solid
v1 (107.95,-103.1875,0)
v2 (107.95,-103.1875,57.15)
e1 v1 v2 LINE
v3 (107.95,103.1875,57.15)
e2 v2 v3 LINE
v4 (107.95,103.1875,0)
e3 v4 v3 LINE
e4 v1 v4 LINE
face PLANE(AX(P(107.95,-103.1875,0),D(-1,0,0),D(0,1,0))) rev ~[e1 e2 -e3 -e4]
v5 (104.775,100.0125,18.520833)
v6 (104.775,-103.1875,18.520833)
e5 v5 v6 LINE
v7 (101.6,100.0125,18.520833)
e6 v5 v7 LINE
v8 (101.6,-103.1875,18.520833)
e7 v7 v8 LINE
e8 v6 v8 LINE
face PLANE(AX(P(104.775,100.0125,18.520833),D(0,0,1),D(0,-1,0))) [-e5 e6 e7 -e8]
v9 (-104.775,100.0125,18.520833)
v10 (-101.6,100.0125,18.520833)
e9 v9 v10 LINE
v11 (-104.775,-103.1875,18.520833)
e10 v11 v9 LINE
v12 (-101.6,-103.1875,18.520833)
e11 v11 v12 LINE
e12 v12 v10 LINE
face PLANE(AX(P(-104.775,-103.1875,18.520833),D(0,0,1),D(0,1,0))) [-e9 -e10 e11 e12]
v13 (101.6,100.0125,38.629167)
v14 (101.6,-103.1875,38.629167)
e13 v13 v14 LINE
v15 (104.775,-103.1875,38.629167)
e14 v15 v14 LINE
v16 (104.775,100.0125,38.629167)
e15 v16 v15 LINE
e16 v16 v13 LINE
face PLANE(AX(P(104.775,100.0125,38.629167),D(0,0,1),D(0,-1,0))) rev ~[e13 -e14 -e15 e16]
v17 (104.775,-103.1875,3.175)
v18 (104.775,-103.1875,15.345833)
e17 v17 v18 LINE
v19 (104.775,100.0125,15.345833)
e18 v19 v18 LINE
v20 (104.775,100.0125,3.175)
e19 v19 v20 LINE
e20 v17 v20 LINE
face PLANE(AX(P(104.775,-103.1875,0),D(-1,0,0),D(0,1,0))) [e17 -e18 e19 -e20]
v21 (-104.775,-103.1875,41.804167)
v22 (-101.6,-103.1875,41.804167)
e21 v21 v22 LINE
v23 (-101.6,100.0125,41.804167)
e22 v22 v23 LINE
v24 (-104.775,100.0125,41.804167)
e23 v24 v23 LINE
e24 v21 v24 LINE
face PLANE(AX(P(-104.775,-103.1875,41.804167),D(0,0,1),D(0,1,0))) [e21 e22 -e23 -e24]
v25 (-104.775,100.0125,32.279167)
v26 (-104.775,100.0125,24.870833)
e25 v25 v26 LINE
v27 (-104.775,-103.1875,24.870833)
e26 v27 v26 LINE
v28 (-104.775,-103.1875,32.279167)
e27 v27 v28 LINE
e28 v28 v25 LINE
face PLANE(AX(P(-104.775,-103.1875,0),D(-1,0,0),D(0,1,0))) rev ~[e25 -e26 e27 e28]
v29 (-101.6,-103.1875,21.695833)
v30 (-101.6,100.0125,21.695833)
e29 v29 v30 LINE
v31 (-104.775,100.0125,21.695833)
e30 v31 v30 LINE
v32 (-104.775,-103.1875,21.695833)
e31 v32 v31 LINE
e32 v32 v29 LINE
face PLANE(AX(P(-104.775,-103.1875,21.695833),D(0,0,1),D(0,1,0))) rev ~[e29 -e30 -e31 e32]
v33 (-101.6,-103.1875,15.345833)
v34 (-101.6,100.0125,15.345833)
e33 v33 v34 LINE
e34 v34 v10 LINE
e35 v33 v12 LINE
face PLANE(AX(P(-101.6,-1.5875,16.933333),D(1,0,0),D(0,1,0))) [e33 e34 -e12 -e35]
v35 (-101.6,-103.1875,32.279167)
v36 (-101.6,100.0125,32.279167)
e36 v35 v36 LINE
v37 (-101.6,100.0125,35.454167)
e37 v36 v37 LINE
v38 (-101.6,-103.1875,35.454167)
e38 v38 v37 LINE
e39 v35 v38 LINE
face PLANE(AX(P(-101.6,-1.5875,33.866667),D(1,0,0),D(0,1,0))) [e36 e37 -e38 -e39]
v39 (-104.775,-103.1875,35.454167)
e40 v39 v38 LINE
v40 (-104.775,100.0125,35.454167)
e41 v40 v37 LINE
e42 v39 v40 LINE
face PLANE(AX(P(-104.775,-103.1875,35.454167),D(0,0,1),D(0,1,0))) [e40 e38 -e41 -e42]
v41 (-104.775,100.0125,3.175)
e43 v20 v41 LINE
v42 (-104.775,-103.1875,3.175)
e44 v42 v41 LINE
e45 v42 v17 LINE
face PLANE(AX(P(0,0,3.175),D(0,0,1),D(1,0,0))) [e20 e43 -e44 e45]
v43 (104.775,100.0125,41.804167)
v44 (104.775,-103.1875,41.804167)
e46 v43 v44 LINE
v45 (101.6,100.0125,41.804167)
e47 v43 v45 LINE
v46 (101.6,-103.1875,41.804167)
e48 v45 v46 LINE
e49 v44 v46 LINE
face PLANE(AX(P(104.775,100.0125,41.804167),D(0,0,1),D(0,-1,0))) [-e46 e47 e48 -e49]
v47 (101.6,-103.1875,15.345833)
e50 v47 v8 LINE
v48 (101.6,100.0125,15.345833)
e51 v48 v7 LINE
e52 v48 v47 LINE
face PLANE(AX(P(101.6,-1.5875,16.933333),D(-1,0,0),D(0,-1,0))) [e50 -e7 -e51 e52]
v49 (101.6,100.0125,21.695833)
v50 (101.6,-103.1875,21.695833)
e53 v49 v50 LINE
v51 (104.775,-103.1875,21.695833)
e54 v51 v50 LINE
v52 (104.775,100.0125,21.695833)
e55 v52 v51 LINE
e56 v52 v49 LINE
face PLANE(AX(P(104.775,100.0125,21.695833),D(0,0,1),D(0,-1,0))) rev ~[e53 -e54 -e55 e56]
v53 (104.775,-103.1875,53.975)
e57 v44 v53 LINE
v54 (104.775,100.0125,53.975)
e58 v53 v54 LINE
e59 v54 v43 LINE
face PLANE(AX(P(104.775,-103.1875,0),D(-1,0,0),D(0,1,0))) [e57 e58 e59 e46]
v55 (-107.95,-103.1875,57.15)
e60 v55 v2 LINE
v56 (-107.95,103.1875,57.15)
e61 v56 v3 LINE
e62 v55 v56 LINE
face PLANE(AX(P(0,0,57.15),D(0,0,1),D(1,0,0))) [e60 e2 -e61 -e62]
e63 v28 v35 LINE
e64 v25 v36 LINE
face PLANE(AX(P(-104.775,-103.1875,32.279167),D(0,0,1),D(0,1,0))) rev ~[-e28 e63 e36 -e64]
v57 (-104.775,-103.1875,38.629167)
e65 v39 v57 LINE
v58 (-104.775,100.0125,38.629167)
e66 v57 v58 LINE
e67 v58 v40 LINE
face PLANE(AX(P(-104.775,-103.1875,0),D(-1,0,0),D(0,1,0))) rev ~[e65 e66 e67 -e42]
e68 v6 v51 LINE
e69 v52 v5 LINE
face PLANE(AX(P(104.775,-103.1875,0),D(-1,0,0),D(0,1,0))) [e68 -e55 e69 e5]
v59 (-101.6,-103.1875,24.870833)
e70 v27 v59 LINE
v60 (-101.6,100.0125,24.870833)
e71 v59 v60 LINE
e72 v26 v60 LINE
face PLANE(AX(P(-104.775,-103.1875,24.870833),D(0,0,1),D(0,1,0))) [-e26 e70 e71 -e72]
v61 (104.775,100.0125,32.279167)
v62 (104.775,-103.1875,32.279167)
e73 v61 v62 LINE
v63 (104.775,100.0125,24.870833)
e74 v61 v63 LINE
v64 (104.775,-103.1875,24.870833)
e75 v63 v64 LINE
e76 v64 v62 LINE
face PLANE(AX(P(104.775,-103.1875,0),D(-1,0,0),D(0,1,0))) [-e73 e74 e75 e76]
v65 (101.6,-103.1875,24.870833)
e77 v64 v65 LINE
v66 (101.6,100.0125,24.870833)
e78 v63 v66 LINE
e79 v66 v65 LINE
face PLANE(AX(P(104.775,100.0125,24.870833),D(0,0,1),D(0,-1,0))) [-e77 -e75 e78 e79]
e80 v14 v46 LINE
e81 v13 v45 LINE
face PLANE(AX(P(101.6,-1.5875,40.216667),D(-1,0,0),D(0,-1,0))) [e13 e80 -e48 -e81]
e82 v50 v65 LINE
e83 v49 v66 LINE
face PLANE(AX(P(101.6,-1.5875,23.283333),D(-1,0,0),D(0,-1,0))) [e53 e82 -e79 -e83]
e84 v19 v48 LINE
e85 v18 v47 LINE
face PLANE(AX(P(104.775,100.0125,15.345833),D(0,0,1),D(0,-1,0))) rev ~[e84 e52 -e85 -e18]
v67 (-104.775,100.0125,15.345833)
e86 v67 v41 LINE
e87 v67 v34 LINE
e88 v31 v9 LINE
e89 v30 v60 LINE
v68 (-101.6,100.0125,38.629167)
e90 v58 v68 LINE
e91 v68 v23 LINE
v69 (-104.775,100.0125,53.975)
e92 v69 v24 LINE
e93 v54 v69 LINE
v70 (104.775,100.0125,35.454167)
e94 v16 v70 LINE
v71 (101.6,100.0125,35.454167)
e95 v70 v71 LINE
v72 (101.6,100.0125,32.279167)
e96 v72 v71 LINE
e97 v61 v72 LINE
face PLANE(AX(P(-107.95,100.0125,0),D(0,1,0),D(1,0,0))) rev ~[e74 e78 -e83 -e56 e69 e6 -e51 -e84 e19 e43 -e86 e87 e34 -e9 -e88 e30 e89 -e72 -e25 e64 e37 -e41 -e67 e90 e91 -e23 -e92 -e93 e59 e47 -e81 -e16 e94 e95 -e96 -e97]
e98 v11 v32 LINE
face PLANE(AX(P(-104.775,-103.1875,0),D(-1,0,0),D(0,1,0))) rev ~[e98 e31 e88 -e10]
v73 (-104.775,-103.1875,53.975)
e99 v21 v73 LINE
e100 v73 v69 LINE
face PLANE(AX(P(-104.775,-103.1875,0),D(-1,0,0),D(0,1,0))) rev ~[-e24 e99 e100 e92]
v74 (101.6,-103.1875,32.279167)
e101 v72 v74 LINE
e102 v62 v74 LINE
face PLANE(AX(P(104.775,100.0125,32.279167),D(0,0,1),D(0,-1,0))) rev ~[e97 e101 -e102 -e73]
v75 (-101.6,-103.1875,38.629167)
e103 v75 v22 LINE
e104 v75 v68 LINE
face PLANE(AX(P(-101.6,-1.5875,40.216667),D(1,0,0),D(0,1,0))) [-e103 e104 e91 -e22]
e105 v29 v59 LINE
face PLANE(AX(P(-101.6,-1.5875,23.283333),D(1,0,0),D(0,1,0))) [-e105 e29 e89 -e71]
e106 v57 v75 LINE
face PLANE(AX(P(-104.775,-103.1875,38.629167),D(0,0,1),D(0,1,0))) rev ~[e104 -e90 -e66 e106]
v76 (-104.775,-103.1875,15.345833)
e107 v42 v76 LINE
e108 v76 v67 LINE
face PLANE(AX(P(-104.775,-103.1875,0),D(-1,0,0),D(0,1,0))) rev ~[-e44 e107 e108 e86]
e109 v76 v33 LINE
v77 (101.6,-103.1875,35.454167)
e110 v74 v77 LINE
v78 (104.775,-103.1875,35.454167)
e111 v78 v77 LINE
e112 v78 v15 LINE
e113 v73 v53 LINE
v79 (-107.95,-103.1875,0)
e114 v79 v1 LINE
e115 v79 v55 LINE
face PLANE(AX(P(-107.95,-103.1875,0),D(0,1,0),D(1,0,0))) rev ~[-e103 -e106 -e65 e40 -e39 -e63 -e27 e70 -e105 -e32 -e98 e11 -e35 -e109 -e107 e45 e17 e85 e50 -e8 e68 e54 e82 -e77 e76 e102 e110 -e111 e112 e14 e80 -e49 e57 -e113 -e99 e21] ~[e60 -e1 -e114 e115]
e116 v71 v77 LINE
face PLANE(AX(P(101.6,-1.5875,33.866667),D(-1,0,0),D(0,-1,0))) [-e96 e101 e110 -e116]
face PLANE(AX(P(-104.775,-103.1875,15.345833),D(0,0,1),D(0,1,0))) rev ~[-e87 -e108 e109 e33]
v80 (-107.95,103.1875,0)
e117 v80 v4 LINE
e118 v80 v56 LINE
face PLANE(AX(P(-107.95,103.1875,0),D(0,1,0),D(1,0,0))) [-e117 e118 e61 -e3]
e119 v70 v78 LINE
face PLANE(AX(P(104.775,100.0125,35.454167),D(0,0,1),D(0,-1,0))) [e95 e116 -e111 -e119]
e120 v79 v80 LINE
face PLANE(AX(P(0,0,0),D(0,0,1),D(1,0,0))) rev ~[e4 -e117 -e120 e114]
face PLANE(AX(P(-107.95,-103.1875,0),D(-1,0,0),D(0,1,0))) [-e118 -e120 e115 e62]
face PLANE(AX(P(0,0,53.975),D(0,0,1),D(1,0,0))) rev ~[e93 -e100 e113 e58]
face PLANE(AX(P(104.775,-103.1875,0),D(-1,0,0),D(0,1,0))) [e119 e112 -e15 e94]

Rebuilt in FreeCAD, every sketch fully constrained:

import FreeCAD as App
import Part
import Sketcher
from FreeCAD import Vector
Q = App.Units.Quantity


def faces_at(feature, points):
    """Names of the faces that lie closest to the given points."""
    faces = feature.Shape.Faces
    near = lambda p: min(range(len(faces)), key=lambda i: faces[i].distToShape(Part.Vertex(*p))[0])
    return sorted({f"Face{near(p) + 1}" for p in points})


def add_polygon(sketch, points):
    """Adds a closed chain of lines whose ends are joined by coincident constraints."""
    first, n = sketch.GeometryCount, len(points)
    for a, b in zip(points, points[1:] + points[:1]):
        sketch.addGeometry(Part.LineSegment(App.Vector(*a, 0), App.Vector(*b, 0)), False)
    for i in range(n):
        sketch.addConstraint(Sketcher.Constraint("Coincident", first + i, 2, first + (i + 1) % n, 1))

doc = App.newDocument("Part")
body = doc.addObject("PartDesign::Body", "Body")

# Sketch on XY plane
sketch1 = body.newObject("Sketcher::SketchObject", "Sketch")
sketch1.AttachmentSupport = (doc.getObject("XY_Plane"), [""])
sketch1.MapMode = "FlatFace"
add_polygon(sketch1, [(-107.95, 103.1875), (-107.95, -103.1875), (107.95, -103.1875), (107.95, 103.1875)])  # lines 0-3
sketch1.addConstraint([
    Sketcher.Constraint("Vertical", 0),
    Sketcher.Constraint("Horizontal", 1),
    Sketcher.Constraint("Vertical", 2),
    Sketcher.Constraint("Horizontal", 3),
    Sketcher.Constraint("Symmetric", 0, 2, 2, 2, -1, 1),
    Sketcher.Constraint("DistanceX", 1, 1, 1, 2, Q("8.5 in")),
    Sketcher.Constraint("DistanceY", 0, 2, 0, 1, Q("8.125 in")),
])
pad1 = body.newObject("PartDesign::Pad", "Pad")
pad1.Profile = sketch1
pad1.Length = Q("2.25 in")
doc.recompute()

thickness = body.newObject("PartDesign::Thickness", "Thickness")
thickness.Base = (pad1, faces_at(pad1, [(0, -103.188, 28.575)]))
thickness.Value = Q("0.125 in")
thickness.Reversed = True
thickness.Join = "Arc"

# Sketch on YZ plane
sketch2 = body.newObject("Sketcher::SketchObject", "Sketch001")
sketch2.AttachmentSupport = (doc.getObject("YZ_Plane"), [""])
sketch2.MapMode = "FlatFace"
sketch2.AttachmentOffset = App.Placement(Vector(0, 0, -4.125 * 25.4), App.Rotation())
add_polygon(sketch2, [(-103.1875, 41.804167), (-103.1875, 38.629167), (100.0125, 38.629167), (100.0125, 41.804167)])  # lines 0-3
add_polygon(sketch2, [(-103.1875, 35.454167), (-103.1875, 32.279167), (100.0125, 32.279167), (100.0125, 35.454167)])  # lines 4-7
add_polygon(sketch2, [(-103.1875, 24.870833), (-103.1875, 21.695833), (100.0125, 21.695833), (100.0125, 24.870833)])  # lines 8-11
add_polygon(sketch2, [(-103.1875, 18.520833), (-103.1875, 15.345833), (100.0125, 15.345833), (100.0125, 18.520833)])  # lines 12-15
sketch2.addConstraint([
    Sketcher.Constraint("Vertical", 0),
    Sketcher.Constraint("Horizontal", 1),
    Sketcher.Constraint("Vertical", 2),
    Sketcher.Constraint("Horizontal", 3),
    Sketcher.Constraint("Vertical", 4),
    Sketcher.Constraint("Horizontal", 5),
    Sketcher.Constraint("Vertical", 6),
    Sketcher.Constraint("Horizontal", 7),
    Sketcher.Constraint("Vertical", 8),
    Sketcher.Constraint("Horizontal", 9),
    Sketcher.Constraint("Vertical", 10),
    Sketcher.Constraint("Horizontal", 11),
    Sketcher.Constraint("Vertical", 12),
    Sketcher.Constraint("Horizontal", 13),
    Sketcher.Constraint("Vertical", 14),
    Sketcher.Constraint("Horizontal", 15),
    Sketcher.Constraint("Vertical", 3, 2, 4, 2),
    Sketcher.Constraint("Vertical", 2, 2, 5, 2),
    Sketcher.Constraint("Vertical", 7, 2, 8, 2),
    Sketcher.Constraint("Vertical", 6, 2, 9, 2),
    Sketcher.Constraint("Vertical", 11, 2, 12, 2),
    Sketcher.Constraint("Vertical", 10, 2, 13, 2),
    Sketcher.Constraint("Equal", 2, 4),
    Sketcher.Constraint("Equal", 6, 8),
    Sketcher.Constraint("Equal", 10, 12),
    Sketcher.Constraint("DistanceX", 1, 1, 1, 2, Q("8 in")),
    Sketcher.Constraint("DistanceY", 0, 2, 0, 1, Q("0.125 in")),
    Sketcher.Constraint("DistanceY", 4, 2, 0, 2, Q("0.25 in")),
    Sketcher.Constraint("DistanceY", 12, 2, 8, 2, Q("0.25 in")),
    Sketcher.Constraint("DistanceX", 0, 2, -1, 1, Q("4.0625 in")),
    Sketcher.Constraint("DistanceY", -1, 1, 0, 2, Q("38.629167 mm")),
    Sketcher.Constraint("DistanceY", -1, 1, 8, 2, Q("21.695833 mm")),
])
pad2 = body.newObject("PartDesign::Pad", "Pad001")
pad2.Profile = sketch2
pad2.Length = Q("0.125 in")

# Sketch on YZ plane
sketch3 = body.newObject("Sketcher::SketchObject", "Sketch002")
sketch3.AttachmentSupport = (doc.getObject("YZ_Plane"), [""])
sketch3.MapMode = "FlatFace"
sketch3.AttachmentOffset = App.Placement(Vector(0, 0, 4.125 * 25.4), App.Rotation())
add_polygon(sketch3, [(100.0125, 41.804167), (100.0125, 38.629167), (-103.1875, 38.629167), (-103.1875, 41.804167)])  # lines 0-3
add_polygon(sketch3, [(100.0125, 35.454167), (100.0125, 32.279167), (-103.1875, 32.279167), (-103.1875, 35.454167)])  # lines 4-7
add_polygon(sketch3, [(100.0125, 24.870833), (100.0125, 21.695833), (-103.1875, 21.695833), (-103.1875, 24.870833)])  # lines 8-11
add_polygon(sketch3, [(100.0125, 18.520833), (100.0125, 15.345833), (-103.1875, 15.345833), (-103.1875, 18.520833)])  # lines 12-15
sketch3.addConstraint([
    Sketcher.Constraint("Vertical", 0),
    Sketcher.Constraint("Horizontal", 1),
    Sketcher.Constraint("Vertical", 2),
    Sketcher.Constraint("Horizontal", 3),
    Sketcher.Constraint("Vertical", 4),
    Sketcher.Constraint("Horizontal", 5),
    Sketcher.Constraint("Vertical", 6),
    Sketcher.Constraint("Horizontal", 7),
    Sketcher.Constraint("Vertical", 8),
    Sketcher.Constraint("Horizontal", 9),
    Sketcher.Constraint("Vertical", 10),
    Sketcher.Constraint("Horizontal", 11),
    Sketcher.Constraint("Vertical", 12),
    Sketcher.Constraint("Horizontal", 13),
    Sketcher.Constraint("Vertical", 14),
    Sketcher.Constraint("Horizontal", 15),
    Sketcher.Constraint("Vertical", 3, 2, 4, 2),
    Sketcher.Constraint("Vertical", 2, 2, 5, 2),
    Sketcher.Constraint("Vertical", 7, 2, 8, 2),
    Sketcher.Constraint("Vertical", 6, 2, 9, 2),
    Sketcher.Constraint("Vertical", 11, 2, 12, 2),
    Sketcher.Constraint("Vertical", 10, 2, 13, 2),
    Sketcher.Constraint("Equal", 2, 4),
    Sketcher.Constraint("Equal", 6, 8),
    Sketcher.Constraint("Equal", 10, 12),
    Sketcher.Constraint("DistanceX", 1, 2, 1, 1, Q("8 in")),
    Sketcher.Constraint("DistanceY", 0, 2, 0, 1, Q("0.125 in")),
    Sketcher.Constraint("DistanceY", 4, 2, 0, 2, Q("0.25 in")),
    Sketcher.Constraint("DistanceY", 12, 2, 8, 2, Q("0.25 in")),
    Sketcher.Constraint("DistanceX", -1, 1, 0, 2, Q("3.9375 in")),
    Sketcher.Constraint("DistanceY", -1, 1, 0, 2, Q("38.629167 mm")),
    Sketcher.Constraint("DistanceY", -1, 1, 8, 2, Q("21.695833 mm")),
])
pad3 = body.newObject("PartDesign::Pad", "Pad002")
pad3.Profile = sketch3
pad3.Length = Q("0.125 in")
pad3.Reversed = True

doc.recompute()
